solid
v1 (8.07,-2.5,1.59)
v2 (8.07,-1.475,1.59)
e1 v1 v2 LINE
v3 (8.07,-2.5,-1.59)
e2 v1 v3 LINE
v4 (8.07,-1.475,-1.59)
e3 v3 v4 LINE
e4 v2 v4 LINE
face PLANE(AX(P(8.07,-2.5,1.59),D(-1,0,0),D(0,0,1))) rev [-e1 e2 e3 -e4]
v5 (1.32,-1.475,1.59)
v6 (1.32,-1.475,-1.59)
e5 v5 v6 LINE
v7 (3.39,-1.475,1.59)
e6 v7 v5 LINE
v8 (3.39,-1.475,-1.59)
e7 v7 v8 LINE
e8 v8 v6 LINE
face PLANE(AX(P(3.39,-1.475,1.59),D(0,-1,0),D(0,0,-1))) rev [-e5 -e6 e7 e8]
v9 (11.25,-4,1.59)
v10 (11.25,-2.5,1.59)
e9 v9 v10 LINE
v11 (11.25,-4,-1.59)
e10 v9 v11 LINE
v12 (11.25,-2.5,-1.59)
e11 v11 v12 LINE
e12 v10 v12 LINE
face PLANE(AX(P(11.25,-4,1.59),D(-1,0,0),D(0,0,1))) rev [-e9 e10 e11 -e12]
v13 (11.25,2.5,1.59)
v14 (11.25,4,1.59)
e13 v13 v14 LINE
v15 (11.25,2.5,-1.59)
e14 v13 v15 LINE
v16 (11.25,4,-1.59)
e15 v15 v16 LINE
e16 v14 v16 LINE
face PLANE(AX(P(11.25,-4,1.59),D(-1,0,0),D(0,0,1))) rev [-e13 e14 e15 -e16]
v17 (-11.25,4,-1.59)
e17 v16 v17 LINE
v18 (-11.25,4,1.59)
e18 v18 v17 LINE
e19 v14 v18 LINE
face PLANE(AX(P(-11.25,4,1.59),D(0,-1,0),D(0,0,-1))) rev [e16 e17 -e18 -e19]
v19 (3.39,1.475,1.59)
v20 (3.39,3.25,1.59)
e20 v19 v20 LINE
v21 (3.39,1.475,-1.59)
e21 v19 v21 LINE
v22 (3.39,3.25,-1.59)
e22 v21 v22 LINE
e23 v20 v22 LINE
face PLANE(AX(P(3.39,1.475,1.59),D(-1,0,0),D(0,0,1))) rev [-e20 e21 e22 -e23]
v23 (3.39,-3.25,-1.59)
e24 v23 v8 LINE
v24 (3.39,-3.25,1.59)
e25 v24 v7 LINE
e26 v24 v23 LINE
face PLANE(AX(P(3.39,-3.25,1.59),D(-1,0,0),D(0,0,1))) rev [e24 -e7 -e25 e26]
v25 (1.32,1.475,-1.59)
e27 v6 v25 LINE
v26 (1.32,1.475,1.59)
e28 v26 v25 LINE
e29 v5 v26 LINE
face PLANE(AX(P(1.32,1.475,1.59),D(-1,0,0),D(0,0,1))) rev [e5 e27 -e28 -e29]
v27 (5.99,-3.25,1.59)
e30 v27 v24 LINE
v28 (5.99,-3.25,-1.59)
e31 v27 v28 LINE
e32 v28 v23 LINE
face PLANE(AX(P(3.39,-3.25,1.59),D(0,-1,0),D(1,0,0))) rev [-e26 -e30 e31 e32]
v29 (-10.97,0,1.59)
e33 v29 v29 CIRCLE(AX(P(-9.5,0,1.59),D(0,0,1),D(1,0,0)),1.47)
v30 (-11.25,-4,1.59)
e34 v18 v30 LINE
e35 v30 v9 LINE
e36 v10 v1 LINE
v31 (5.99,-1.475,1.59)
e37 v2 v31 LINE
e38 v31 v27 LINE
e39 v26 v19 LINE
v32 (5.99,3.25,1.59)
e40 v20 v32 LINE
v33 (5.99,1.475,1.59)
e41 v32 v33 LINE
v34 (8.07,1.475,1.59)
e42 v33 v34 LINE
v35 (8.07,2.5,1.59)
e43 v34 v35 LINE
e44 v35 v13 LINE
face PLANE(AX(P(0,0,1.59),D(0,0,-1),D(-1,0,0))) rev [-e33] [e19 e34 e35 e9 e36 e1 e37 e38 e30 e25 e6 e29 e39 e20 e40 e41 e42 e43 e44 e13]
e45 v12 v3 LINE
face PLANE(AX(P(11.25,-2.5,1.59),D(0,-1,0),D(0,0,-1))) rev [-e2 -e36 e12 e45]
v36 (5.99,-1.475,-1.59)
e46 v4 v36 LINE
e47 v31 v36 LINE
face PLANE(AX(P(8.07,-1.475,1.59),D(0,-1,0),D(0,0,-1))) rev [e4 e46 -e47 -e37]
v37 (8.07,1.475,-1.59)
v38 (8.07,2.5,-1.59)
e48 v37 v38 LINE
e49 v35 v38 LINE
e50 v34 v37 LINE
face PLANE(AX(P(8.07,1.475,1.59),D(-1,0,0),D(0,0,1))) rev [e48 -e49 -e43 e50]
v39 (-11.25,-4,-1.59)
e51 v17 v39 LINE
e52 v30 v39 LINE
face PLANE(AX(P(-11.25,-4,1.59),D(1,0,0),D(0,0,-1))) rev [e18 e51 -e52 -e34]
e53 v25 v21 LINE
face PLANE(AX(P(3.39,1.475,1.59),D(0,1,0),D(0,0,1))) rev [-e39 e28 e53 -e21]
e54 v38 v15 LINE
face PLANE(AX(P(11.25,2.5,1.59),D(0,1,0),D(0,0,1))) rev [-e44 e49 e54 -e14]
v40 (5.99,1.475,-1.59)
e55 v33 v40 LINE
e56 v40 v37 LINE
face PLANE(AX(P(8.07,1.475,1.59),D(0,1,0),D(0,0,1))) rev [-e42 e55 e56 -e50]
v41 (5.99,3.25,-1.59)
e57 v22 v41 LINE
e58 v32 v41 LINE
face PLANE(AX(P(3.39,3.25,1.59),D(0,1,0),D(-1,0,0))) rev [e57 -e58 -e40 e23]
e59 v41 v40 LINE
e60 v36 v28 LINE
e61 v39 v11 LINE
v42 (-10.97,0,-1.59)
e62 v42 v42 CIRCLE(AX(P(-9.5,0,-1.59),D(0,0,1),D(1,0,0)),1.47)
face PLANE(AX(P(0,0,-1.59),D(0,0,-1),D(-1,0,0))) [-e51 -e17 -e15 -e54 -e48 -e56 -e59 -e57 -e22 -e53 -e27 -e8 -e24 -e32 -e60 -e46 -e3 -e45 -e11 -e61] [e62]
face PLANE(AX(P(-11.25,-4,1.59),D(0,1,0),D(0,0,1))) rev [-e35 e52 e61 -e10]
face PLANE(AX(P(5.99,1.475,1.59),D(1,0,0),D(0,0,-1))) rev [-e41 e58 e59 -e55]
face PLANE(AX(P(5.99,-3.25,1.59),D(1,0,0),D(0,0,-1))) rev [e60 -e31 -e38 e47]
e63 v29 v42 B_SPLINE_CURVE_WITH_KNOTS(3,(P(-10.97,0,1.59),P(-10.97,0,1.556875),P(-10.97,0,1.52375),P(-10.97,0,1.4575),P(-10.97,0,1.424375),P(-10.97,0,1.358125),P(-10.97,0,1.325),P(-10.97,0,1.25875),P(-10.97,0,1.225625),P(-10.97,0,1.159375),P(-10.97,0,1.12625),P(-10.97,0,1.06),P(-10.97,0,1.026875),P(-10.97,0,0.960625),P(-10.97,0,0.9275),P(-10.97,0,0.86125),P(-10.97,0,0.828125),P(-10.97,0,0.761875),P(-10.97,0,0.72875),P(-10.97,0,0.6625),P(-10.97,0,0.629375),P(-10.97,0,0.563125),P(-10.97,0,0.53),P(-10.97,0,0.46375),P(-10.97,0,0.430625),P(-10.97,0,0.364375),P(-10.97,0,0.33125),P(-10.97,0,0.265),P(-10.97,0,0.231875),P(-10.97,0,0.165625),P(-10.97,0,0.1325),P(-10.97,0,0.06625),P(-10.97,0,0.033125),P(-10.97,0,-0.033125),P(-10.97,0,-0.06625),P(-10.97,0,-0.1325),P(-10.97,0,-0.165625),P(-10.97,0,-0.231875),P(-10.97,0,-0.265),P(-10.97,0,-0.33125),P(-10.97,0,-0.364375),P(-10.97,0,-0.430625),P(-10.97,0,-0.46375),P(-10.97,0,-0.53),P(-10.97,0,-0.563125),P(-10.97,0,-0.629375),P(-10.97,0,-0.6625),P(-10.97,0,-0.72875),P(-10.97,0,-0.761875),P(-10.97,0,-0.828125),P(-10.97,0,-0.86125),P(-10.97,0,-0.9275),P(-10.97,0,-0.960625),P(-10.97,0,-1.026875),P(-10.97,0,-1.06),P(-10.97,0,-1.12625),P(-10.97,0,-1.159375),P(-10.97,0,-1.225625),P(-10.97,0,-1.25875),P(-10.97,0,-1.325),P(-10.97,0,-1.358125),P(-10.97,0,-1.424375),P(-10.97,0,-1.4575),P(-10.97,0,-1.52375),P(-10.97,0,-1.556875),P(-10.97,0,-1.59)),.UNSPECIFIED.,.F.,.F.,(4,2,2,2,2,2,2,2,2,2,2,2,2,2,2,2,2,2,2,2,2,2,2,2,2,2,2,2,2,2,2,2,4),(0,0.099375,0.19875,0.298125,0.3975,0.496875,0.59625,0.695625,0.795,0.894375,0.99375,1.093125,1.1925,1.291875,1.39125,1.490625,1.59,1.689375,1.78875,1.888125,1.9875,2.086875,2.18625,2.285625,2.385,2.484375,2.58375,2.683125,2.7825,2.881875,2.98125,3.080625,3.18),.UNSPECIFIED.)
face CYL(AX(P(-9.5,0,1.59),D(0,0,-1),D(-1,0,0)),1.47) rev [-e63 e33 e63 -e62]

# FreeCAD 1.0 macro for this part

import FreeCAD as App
import Part
import Sketcher

V = App.Vector
Q = App.Units.Quantity


def add_polygon(sketch, points):
    """Adds a closed chain of lines whose ends are joined by coincident constraints."""
    first, n = sketch.GeometryCount, len(points)
    for a, b in zip(points, points[1:] + points[:1]):
        sketch.addGeometry(Part.LineSegment(App.Vector(*a, 0), App.Vector(*b, 0)), False)
    for i in range(n):
        sketch.addConstraint(Sketcher.Constraint("Coincident", first + i, 2, first + (i + 1) % n, 1))

doc = App.newDocument("Part")
body = doc.addObject("PartDesign::Body", "Body")

# Sketch on XY plane
sketch1 = body.newObject("Sketcher::SketchObject", "Sketch")
sketch1.AttachmentSupport = (doc.getObject("XY_Plane"), [""])
sketch1.MapMode = "FlatFace"
add_polygon(sketch1, [(-11.2, 4), (-11.2, -4), (11.2, -4), (11.2, 4)])  # lines 0-3
sketch1.addGeometry(Part.Circle(V(-9.5, 0, 0), V(0, 0, 1), 1.5), False)  # 4
sketch1.addConstraint([
    Sketcher.Constraint("Vertical", 0),
    Sketcher.Constraint("Horizontal", 1),
    Sketcher.Constraint("Vertical", 2),
    Sketcher.Constraint("Horizontal", 3),
    Sketcher.Constraint("Symmetric", 0, 2, 2, 2, -1, 1),
    Sketcher.Constraint("PointOnObject", 4, 3, -1),
    Sketcher.Constraint("Diameter", 4, Q("2.94 mm")),
    Sketcher.Constraint("DistanceY", 0, 2, 0, 1, Q("8 mm")),
    Sketcher.Constraint("DistanceX", 1, 1, 1, 2, Q("22.5 mm")),
    Sketcher.Constraint("DistanceX", 4, 3, -1, 1, Q("9.5 mm")),
])
pad1 = body.newObject("PartDesign::Pad", "Pad")
pad1.Profile = sketch1
pad1.Length = 3.18
pad1.Midplane = True

# Sketch on XY plane
sketch2 = body.newObject("Sketcher::SketchObject", "Sketch001")
sketch2.AttachmentSupport = (doc.getObject("XY_Plane"), [""])
sketch2.MapMode = "FlatFace"
sketch2.AttachmentOffset = App.Placement(V(0, 0, -1.59), App.Rotation())
add_polygon(sketch2, [(3.4, -1.5), (1.3, -1.5), (1.3, 1.5), (3.4, 1.5), (3.4, 3.2), (6, 3.2), (6, 1.5), (8.1, 1.5), (8.1, 2.5), (11.2, 2.5), (11.2, -2.5), (8.1, -2.5), (8.1, -1.5), (6, -1.5), (6, -3.2), (3.4, -3.2)])  # lines 0-15
sketch2.addConstraint([
    Sketcher.Constraint("Horizontal", 0),
    Sketcher.Constraint("Vertical", 1),
    Sketcher.Constraint("Horizontal", 2),
    Sketcher.Constraint("Vertical", 3),
    Sketcher.Constraint("Horizontal", 4),
    Sketcher.Constraint("Vertical", 5),
    Sketcher.Constraint("Horizontal", 6),
    Sketcher.Constraint("Vertical", 7),
    Sketcher.Constraint("Horizontal", 8),
    Sketcher.Constraint("Vertical", 9),
    Sketcher.Constraint("Horizontal", 10),
    Sketcher.Constraint("Vertical", 11),
    Sketcher.Constraint("Horizontal", 12),
    Sketcher.Constraint("Vertical", 13),
    Sketcher.Constraint("Horizontal", 14),
    Sketcher.Constraint("Vertical", 15),
    Sketcher.Constraint("Symmetric", 7, 2, 10, 2, -1),
    Sketcher.Constraint("Symmetric", 5, 2, 12, 2, -1),
    Sketcher.Constraint("Symmetric", 3, 2, 14, 2, -1),
    Sketcher.Constraint("Horizontal", 2, 2, 5, 2),
    Sketcher.Constraint("Horizontal", 0, 2, 11, 2),
    Sketcher.Constraint("DistanceY", 9, 2, 9, 1, Q("5 mm")),
    Sketcher.Constraint("DistanceX", 4, 1, 4, 2, Q("2.6 mm")),
    Sketcher.Constraint("DistanceX", 0, 2, 0, 1, Q("2.07 mm")),
    Sketcher.Constraint("DistanceX", 6, 1, 6, 2, Q("2.08 mm")),
    Sketcher.Constraint("DistanceX", 8, 1, 8, 2, Q("3.18 mm")),
    Sketcher.Constraint("DistanceY", 1, 1, 1, 2, Q("2.95 mm")),
    Sketcher.Constraint("DistanceY", 3, 1, 3, 2, Q("1.775 mm")),
    Sketcher.Constraint("DistanceX", -1, 1, 0, 2, Q("1.32 mm")),
])
pocket1 = body.newObject("PartDesign::Pocket", "Pocket")
pocket1.Profile = sketch2
pocket1.Type = "ThroughAll"
pocket1.Reversed = True

doc.recompute()
